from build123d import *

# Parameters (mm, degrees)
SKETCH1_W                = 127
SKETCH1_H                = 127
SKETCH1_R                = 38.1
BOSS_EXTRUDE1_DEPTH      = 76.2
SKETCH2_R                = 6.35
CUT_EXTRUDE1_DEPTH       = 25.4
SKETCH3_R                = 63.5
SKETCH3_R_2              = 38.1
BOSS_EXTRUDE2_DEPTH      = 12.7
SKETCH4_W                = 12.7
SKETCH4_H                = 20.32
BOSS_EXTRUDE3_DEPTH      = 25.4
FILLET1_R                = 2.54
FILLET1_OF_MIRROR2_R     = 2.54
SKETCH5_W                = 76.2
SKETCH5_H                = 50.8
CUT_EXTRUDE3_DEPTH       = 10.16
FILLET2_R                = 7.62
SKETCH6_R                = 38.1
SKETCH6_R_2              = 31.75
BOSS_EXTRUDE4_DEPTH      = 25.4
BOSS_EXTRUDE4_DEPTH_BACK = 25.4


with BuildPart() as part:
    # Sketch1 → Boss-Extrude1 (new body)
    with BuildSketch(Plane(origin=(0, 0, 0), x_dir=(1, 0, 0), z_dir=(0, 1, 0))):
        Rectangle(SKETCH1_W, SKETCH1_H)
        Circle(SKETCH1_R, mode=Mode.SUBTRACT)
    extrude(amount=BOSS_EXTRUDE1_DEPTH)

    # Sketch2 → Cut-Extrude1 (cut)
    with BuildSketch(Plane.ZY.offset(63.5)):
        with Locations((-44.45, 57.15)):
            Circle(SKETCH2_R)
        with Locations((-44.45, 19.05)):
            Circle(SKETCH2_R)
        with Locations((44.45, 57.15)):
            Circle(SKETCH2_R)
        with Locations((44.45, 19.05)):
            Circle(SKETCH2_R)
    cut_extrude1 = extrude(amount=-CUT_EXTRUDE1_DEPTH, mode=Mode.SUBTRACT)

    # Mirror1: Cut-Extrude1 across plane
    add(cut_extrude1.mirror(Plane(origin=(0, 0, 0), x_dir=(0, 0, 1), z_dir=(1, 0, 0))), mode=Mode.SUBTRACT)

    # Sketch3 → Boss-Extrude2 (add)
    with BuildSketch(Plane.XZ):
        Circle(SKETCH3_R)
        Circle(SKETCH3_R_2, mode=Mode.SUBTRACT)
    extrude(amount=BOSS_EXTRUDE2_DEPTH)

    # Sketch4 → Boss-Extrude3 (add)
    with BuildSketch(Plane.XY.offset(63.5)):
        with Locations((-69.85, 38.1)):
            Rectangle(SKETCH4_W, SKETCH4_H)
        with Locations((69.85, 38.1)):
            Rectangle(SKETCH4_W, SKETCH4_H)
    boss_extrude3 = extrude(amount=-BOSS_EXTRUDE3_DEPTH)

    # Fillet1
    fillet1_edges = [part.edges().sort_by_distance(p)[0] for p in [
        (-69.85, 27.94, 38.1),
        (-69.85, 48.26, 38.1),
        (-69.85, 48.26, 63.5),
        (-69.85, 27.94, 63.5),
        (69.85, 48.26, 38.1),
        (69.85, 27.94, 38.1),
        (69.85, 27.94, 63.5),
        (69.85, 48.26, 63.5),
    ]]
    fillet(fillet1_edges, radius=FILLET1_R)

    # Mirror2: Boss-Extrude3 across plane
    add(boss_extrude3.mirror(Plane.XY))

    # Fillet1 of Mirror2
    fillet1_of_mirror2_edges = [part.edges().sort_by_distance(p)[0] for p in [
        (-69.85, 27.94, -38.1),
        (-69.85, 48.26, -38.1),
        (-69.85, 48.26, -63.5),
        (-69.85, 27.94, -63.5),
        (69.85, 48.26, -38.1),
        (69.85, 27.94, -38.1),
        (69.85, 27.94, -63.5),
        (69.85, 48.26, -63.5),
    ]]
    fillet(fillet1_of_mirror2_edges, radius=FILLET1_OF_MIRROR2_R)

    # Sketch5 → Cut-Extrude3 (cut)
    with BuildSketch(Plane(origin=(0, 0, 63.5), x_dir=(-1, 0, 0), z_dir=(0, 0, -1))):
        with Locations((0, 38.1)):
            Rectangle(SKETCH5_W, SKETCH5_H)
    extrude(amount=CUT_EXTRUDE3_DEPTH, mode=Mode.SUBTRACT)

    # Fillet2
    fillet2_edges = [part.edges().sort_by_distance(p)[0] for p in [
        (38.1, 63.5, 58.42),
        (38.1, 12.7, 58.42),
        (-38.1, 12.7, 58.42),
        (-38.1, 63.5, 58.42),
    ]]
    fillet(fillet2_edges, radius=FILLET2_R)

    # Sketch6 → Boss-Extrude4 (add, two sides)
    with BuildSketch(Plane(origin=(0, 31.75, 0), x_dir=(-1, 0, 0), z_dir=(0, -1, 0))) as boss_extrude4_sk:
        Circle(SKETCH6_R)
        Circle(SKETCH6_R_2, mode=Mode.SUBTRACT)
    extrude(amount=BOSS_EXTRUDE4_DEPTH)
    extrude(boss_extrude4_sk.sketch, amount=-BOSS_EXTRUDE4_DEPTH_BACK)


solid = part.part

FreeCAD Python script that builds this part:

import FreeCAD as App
import Part
import Sketcher

V = App.Vector
Q = App.Units.Quantity


def edges_at(feature, points):
    """Names of the edges that pass closest to the given points."""
    edges = feature.Shape.Edges
    near = lambda p: min(range(len(edges)), key=lambda i: edges[i].distToShape(Part.Vertex(*p))[0])
    return sorted({f"Edge{near(p) + 1}" for p in points})

doc = App.newDocument("Part")
body = doc.addObject("PartDesign::Body", "Body")

sketch1 = body.newObject("Sketcher::SketchObject", "Sketch")
sketch1.AttachmentSupport = (doc.getObject("XZ_Plane"), [""])
sketch1.MapMode = "FlatFace"
sketch1.addGeometry(Part.LineSegment(V(-64, -64, 0), V(-64, 64, 0)), False)
sketch1.addGeometry(Part.LineSegment(V(-64, 64, 0), V(64, 64, 0)), False)
sketch1.addGeometry(Part.LineSegment(V(64, 64, 0), V(64, -64, 0)), False)
sketch1.addGeometry(Part.LineSegment(V(64, -64, 0), V(-64, -64, 0)), False)
sketch1.addGeometry(Part.Circle(V(0, 0, 0), V(0, 0, 1), 38), False)
sketch1.addConstraint(Sketcher.Constraint("Coincident", 0, 2, 1, 1))
sketch1.addConstraint(Sketcher.Constraint("Coincident", 1, 2, 2, 1))
sketch1.addConstraint(Sketcher.Constraint("Coincident", 2, 2, 3, 1))
sketch1.addConstraint(Sketcher.Constraint("Coincident", 3, 2, 0, 1))
sketch1.addConstraint(Sketcher.Constraint("Vertical", 0))
sketch1.addConstraint(Sketcher.Constraint("Horizontal", 1))
sketch1.addConstraint(Sketcher.Constraint("Vertical", 2))
sketch1.addConstraint(Sketcher.Constraint("Horizontal", 3))
sketch1.addConstraint(Sketcher.Constraint("Coincident", 4, 3, -1, 1))
sketch1.addConstraint(Sketcher.Constraint("Symmetric", 0, 2, 2, 2, -1, 1))
sketch1.addConstraint(Sketcher.Constraint("Equal", 3, 0))
sketch1.addConstraint(Sketcher.Constraint("Diameter", 4, Q("3 in")))
sketch1.addConstraint(Sketcher.Constraint("DistanceX", 1, 1, 1, 2, Q("5 in")))
pad1 = body.newObject("PartDesign::Pad", "Pad")
pad1.Profile = sketch1
pad1.Length = Q("3 in")
pad1.Reversed = True

sketch2 = body.newObject("Sketcher::SketchObject", "Sketch001")
sketch2.AttachmentSupport = (doc.getObject("YZ_Plane"), [""])
sketch2.MapMode = "FlatFace"
sketch2.AttachmentOffset = App.Placement(V(0, 0, -2.5 * 25.4), App.Rotation())
sketch2.addGeometry(Part.Circle(V(57, -44, 0), V(0, 0, 1), 6), False)
sketch2.addGeometry(Part.Circle(V(19, -44, 0), V(0, 0, 1), 6), False)
sketch2.addGeometry(Part.Circle(V(57, 44, 0), V(0, 0, 1), 6), False)
sketch2.addGeometry(Part.Circle(V(19, 44, 0), V(0, 0, 1), 6), False)
sketch2.addConstraint(Sketcher.Constraint("Equal", 0, 1))
sketch2.addConstraint(Sketcher.Constraint("Equal", 1, 2))
sketch2.addConstraint(Sketcher.Constraint("Equal", 2, 3))
sketch2.addConstraint(Sketcher.Constraint("Symmetric", 0, 3, 2, 3, -1))
sketch2.addConstraint(Sketcher.Constraint("Symmetric", 1, 3, 3, 3, -1))
sketch2.addConstraint(Sketcher.Constraint("Horizontal", 0, 3, 1, 3))
sketch2.addConstraint(Sketcher.Constraint("Diameter", 0, Q("0.5 in")))
sketch2.addConstraint(Sketcher.Constraint("DistanceX", 1, 3, 0, 3, Q("1.5 in")))
sketch2.addConstraint(Sketcher.Constraint("DistanceY", 0, 3, 2, 3, Q("3.5 in")))
sketch2.addConstraint(Sketcher.Constraint("DistanceX", -1, 1, 0, 3, Q("2.25 in")))
pocket1 = body.newObject("PartDesign::Pocket", "Pocket")
pocket1.Profile = sketch2
pocket1.Length = Q("1 in")
pocket1.Reversed = True
doc.recompute()

mirrored = body.newObject("PartDesign::Mirrored", "Mirrored")
mirrored.Originals = [pocket1]
mirrored.MirrorPlane = (doc.getObject("YZ_Plane"), [""])
body.Tip = mirrored

sketch3 = body.newObject("Sketcher::SketchObject", "Sketch002")
sketch3.AttachmentSupport = (doc.getObject("XZ_Plane"), [""])
sketch3.MapMode = "FlatFace"
sketch3.addGeometry(Part.Circle(V(0, 0, 0), V(0, 0, 1), 64), False)
sketch3.addGeometry(Part.Circle(V(0, 0, 0), V(0, 0, 1), 38), False)
sketch3.addConstraint(Sketcher.Constraint("Coincident", 0, 3, -1, 1))
sketch3.addConstraint(Sketcher.Constraint("Coincident", 1, 3, -1, 1))
sketch3.addConstraint(Sketcher.Constraint("Diameter", 0, Q("5 in")))
sketch3.addConstraint(Sketcher.Constraint("Diameter", 1, Q("3 in")))
pad2 = body.newObject("PartDesign::Pad", "Pad001")
pad2.Profile = sketch3
pad2.Length = Q("0.5 in")

sketch4 = body.newObject("Sketcher::SketchObject", "Sketch003")
sketch4.AttachmentSupport = (doc.getObject("XY_Plane"), [""])
sketch4.MapMode = "FlatFace"
sketch4.AttachmentOffset = App.Placement(V(0, 0, 2.5 * 25.4), App.Rotation())
sketch4.addGeometry(Part.LineSegment(V(-76, 48, 0), V(-76, 28, 0)), False)
sketch4.addGeometry(Part.LineSegment(V(-76, 28, 0), V(-64, 28, 0)), False)
sketch4.addGeometry(Part.LineSegment(V(-64, 28, 0), V(-64, 48, 0)), False)
sketch4.addGeometry(Part.LineSegment(V(-64, 48, 0), V(-76, 48, 0)), False)
sketch4.addGeometry(Part.LineSegment(V(64, 48, 0), V(64, 28, 0)), False)
sketch4.addGeometry(Part.LineSegment(V(64, 28, 0), V(76, 28, 0)), False)
sketch4.addGeometry(Part.LineSegment(V(76, 28, 0), V(76, 48, 0)), False)
sketch4.addGeometry(Part.LineSegment(V(76, 48, 0), V(64, 48, 0)), False)
sketch4.addConstraint(Sketcher.Constraint("Coincident", 0, 2, 1, 1))
sketch4.addConstraint(Sketcher.Constraint("Coincident", 1, 2, 2, 1))
sketch4.addConstraint(Sketcher.Constraint("Coincident", 2, 2, 3, 1))
sketch4.addConstraint(Sketcher.Constraint("Coincident", 3, 2, 0, 1))
sketch4.addConstraint(Sketcher.Constraint("Coincident", 4, 2, 5, 1))
sketch4.addConstraint(Sketcher.Constraint("Coincident", 5, 2, 6, 1))
sketch4.addConstraint(Sketcher.Constraint("Coincident", 6, 2, 7, 1))
sketch4.addConstraint(Sketcher.Constraint("Coincident", 7, 2, 4, 1))
sketch4.addConstraint(Sketcher.Constraint("Vertical", 0))
sketch4.addConstraint(Sketcher.Constraint("Horizontal", 1))
sketch4.addConstraint(Sketcher.Constraint("Vertical", 2))
sketch4.addConstraint(Sketcher.Constraint("Horizontal", 3))
sketch4.addConstraint(Sketcher.Constraint("Vertical", 4))
sketch4.addConstraint(Sketcher.Constraint("Horizontal", 5))
sketch4.addConstraint(Sketcher.Constraint("Vertical", 6))
sketch4.addConstraint(Sketcher.Constraint("Horizontal", 7))
sketch4.addConstraint(Sketcher.Constraint("Symmetric", 1, 2, 4, 2, -2))
sketch4.addConstraint(Sketcher.Constraint("Symmetric", 3, 2, 6, 2, -2))
sketch4.addConstraint(Sketcher.Constraint("DistanceX", 1, 1, 1, 2, Q("0.5 in")))
sketch4.addConstraint(Sketcher.Constraint("DistanceY", 0, 2, 0, 1, Q("0.8 in")))
sketch4.addConstraint(Sketcher.Constraint("DistanceX", 0, 2, -1, 1, Q("3 in")))
sketch4.addConstraint(Sketcher.Constraint("DistanceY", -1, 1, 0, 2, Q("1.1 in")))
pad3 = body.newObject("PartDesign::Pad", "Pad002")
pad3.Profile = sketch4
pad3.Length = Q("1 in")
pad3.Reversed = True
doc.recompute()

fillet = body.newObject("PartDesign::Fillet", "Fillet")
fillet.Base = (pad3, edges_at(pad3, [
    (-69.85, 27.94, 38.1),
    (-69.85, 48.26, 38.1),
    (-69.85, 48.26, 63.5),
    (-69.85, 27.94, 63.5),
    (69.85, 48.26, 38.1),
    (69.85, 27.94, 38.1),
    (69.85, 27.94, 63.5),
    (69.85, 48.26, 63.5),
]))
fillet.Radius = Q("0.1 in")
doc.recompute()

mirrored2 = body.newObject("PartDesign::Mirrored", "Mirrored001")
mirrored2.Originals = [pad3]
mirrored2.MirrorPlane = (doc.getObject("XY_Plane"), [""])
body.Tip = mirrored2
doc.recompute()

fillet2 = body.newObject("PartDesign::Fillet", "Fillet001")
fillet2.Base = (mirrored2, edges_at(mirrored2, [
    (-69.85, 27.94, -38.1),
    (-69.85, 48.26, -38.1),
    (-69.85, 48.26, -63.5),
    (-69.85, 27.94, -63.5),
    (69.85, 48.26, -38.1),
    (69.85, 27.94, -38.1),
    (69.85, 27.94, -63.5),
    (69.85, 48.26, -63.5),
]))
fillet2.Radius = Q("0.1 in")

sketch5 = body.newObject("Sketcher::SketchObject", "Sketch004")
sketch5.AttachmentSupport = (doc.getObject("XY_Plane"), [""])
sketch5.MapMode = "FlatFace"
sketch5.AttachmentOffset = App.Placement(V(0, 0, 2.5 * 25.4), App.Rotation())
sketch5.addGeometry(Part.LineSegment(V(38, 64, 0), V(38, 13, 0)), False)
sketch5.addGeometry(Part.LineSegment(V(38, 13, 0), V(-38, 13, 0)), False)
sketch5.addGeometry(Part.LineSegment(V(-38, 13, 0), V(-38, 64, 0)), False)
sketch5.addGeometry(Part.LineSegment(V(-38, 64, 0), V(38, 64, 0)), False)
sketch5.addConstraint(Sketcher.Constraint("Coincident", 0, 2, 1, 1))
sketch5.addConstraint(Sketcher.Constraint("Coincident", 1, 2, 2, 1))
sketch5.addConstraint(Sketcher.Constraint("Coincident", 2, 2, 3, 1))
sketch5.addConstraint(Sketcher.Constraint("Coincident", 3, 2, 0, 1))
sketch5.addConstraint(Sketcher.Constraint("Vertical", 0))
sketch5.addConstraint(Sketcher.Constraint("Horizontal", 1))
sketch5.addConstraint(Sketcher.Constraint("Vertical", 2))
sketch5.addConstraint(Sketcher.Constraint("Horizontal", 3))
sketch5.addConstraint(Sketcher.Constraint("DistanceX", 1, 2, 1, 1, Q("3 in")))
sketch5.addConstraint(Sketcher.Constraint("DistanceY", 0, 2, 0, 1, Q("2 in")))
sketch5.addConstraint(Sketcher.Constraint("DistanceX", -1, 1, 0, 2, Q("1.5 in")))
sketch5.addConstraint(Sketcher.Constraint("DistanceY", -1, 1, 0, 2, Q("0.5 in")))
pocket2 = body.newObject("PartDesign::Pocket", "Pocket001")
pocket2.Profile = sketch5
pocket2.Length = Q("0.4 in")
doc.recompute()

fillet3 = body.newObject("PartDesign::Fillet", "Fillet002")
fillet3.Base = (pocket2, edges_at(pocket2, [
    (38.1, 63.5, 58.42),
    (38.1, 12.7, 58.42),
    (-38.1, 12.7, 58.42),
    (-38.1, 63.5, 58.42),
]))
fillet3.Radius = Q("0.3 in")

sketch6 = body.newObject("Sketcher::SketchObject", "Sketch005")
sketch6.AttachmentSupport = (doc.getObject("XZ_Plane"), [""])
sketch6.MapMode = "FlatFace"
sketch6.AttachmentOffset = App.Placement(V(0, 0, -1.25 * 25.4), App.Rotation())
sketch6.addGeometry(Part.Circle(V(0, 0, 0), V(0, 0, 1), 38), False)
sketch6.addGeometry(Part.Circle(V(0, 0, 0), V(0, 0, 1), 32), False)
sketch6.addConstraint(Sketcher.Constraint("Coincident", 0, 3, -1, 1))
sketch6.addConstraint(Sketcher.Constraint("Coincident", 1, 3, -1, 1))
sketch6.addConstraint(Sketcher.Constraint("Diameter", 0, Q("3 in")))
sketch6.addConstraint(Sketcher.Constraint("Diameter", 1, Q("2.5 in")))
pad4 = body.newObject("PartDesign::Pad", "Pad003")
pad4.Profile = sketch6
pad4.Type = "TwoLengths"
pad4.Length = Q("1 in")
pad4.Length2 = Q("1 in")

doc.recompute()
